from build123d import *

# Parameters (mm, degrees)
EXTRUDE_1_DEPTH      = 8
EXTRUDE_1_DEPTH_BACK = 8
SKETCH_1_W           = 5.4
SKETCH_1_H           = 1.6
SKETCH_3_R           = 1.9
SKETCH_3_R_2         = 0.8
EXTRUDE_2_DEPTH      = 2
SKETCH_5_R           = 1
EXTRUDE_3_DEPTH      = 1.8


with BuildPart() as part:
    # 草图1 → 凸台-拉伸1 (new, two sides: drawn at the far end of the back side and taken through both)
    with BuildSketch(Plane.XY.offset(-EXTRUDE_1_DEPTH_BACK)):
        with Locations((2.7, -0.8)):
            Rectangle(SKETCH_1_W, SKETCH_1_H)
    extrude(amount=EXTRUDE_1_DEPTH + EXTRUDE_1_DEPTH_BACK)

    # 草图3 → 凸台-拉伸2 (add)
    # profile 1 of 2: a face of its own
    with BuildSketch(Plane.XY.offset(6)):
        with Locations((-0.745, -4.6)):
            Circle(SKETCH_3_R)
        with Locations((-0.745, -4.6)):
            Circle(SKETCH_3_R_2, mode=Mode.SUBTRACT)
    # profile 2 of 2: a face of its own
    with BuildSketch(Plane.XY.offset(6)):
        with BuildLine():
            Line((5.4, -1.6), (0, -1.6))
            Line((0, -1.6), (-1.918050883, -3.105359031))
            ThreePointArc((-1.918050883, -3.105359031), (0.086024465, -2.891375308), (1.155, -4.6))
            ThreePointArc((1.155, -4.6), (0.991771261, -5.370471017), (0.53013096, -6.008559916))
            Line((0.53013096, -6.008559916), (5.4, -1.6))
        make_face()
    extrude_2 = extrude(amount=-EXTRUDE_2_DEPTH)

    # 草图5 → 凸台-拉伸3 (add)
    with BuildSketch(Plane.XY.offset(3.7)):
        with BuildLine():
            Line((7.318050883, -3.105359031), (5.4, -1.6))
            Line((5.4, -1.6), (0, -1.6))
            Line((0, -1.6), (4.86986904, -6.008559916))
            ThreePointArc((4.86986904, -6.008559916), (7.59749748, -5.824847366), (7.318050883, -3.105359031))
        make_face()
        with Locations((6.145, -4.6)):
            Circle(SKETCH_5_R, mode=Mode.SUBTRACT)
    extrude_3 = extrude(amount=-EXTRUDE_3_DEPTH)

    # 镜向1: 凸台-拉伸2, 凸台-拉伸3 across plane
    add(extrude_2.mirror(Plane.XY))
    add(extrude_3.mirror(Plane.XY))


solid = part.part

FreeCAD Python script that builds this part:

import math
import FreeCAD as App
import Part
import Sketcher
from FreeCAD import Vector
Q = App.Units.Quantity

doc = App.newDocument("Part")
body = doc.addObject("PartDesign::Body", "Body")

# Sketch on XY plane
sketch1 = body.newObject("Sketcher::SketchObject", "Sketch")
sketch1.AttachmentSupport = (doc.getObject("XY_Plane"), [""])
sketch1.MapMode = "FlatFace"
sketch1.addGeometry(Part.LineSegment(Vector(0, 0, 0), Vector(0, -1.6, 0)), False)
sketch1.addGeometry(Part.LineSegment(Vector(0, -1.6, 0), Vector(5.4, -1.6, 0)), False)
sketch1.addGeometry(Part.LineSegment(Vector(5.4, -1.6, 0), Vector(5.4, 0, 0)), False)
sketch1.addGeometry(Part.LineSegment(Vector(5.4, 0, 0), Vector(0, 0, 0)), False)
sketch1.addConstraint(Sketcher.Constraint("Coincident", 0, 2, 1, 1))
sketch1.addConstraint(Sketcher.Constraint("Coincident", 1, 2, 2, 1))
sketch1.addConstraint(Sketcher.Constraint("Coincident", 2, 2, 3, 1))
sketch1.addConstraint(Sketcher.Constraint("Coincident", 3, 2, 0, 1))
sketch1.addConstraint(Sketcher.Constraint("Vertical", 0))
sketch1.addConstraint(Sketcher.Constraint("Horizontal", 1))
sketch1.addConstraint(Sketcher.Constraint("Vertical", 2))
sketch1.addConstraint(Sketcher.Constraint("Horizontal", 3))
sketch1.addConstraint(Sketcher.Constraint("Coincident", 3, 2, -1, 1))
sketch1.addConstraint(Sketcher.Constraint("DistanceX", 1, 1, 1, 2, Q("5.4 mm")))
sketch1.addConstraint(Sketcher.Constraint("DistanceY", 0, 2, 0, 1, Q("1.6 mm")))
pad1 = body.newObject("PartDesign::Pad", "Pad")
pad1.Profile = sketch1
pad1.Type = "TwoLengths"
pad1.Length = 8
pad1.Length2 = 8

# Sketch on XY plane
sketch2 = body.newObject("Sketcher::SketchObject", "Sketch001")
sketch2.AttachmentSupport = (doc.getObject("XY_Plane"), [""])
sketch2.MapMode = "FlatFace"
sketch2.AttachmentOffset = App.Placement(Vector(0, 0, 6), App.Rotation())
sketch2.addGeometry(Part.ArcOfCircle(Part.Circle(Vector(-0.745, -4.6, 0), Vector(0, 0, 1), 1.9), math.radians(128.126167), math.radians(312.153686)), False)
sketch2.addGeometry(Part.LineSegment(Vector(0.530131, -6.00856, 0), Vector(5.4, -1.6, 0)), False)
sketch2.addGeometry(Part.LineSegment(Vector(5.4, -1.6, 0), Vector(0, -1.6, 0)), False)
sketch2.addGeometry(Part.LineSegment(Vector(0, -1.6, 0), Vector(-1.918051, -3.105359, 0)), False)
sketch2.addGeometry(Part.Circle(Vector(-0.745, -4.6, 0), Vector(0, 0, 1), 0.8), False)
sketch2.addConstraint(Sketcher.Constraint("Tangent", 0, 2, 1, 1))
sketch2.addConstraint(Sketcher.Constraint("Coincident", 1, 2, 2, 1))
sketch2.addConstraint(Sketcher.Constraint("Coincident", 2, 2, 3, 1))
sketch2.addConstraint(Sketcher.Constraint("Tangent", 3, 2, 0, 1))
sketch2.addConstraint(Sketcher.Constraint("Horizontal", 2))
sketch2.addConstraint(Sketcher.Constraint("Coincident", 4, 3, 0, 3))
sketch2.addConstraint(Sketcher.Constraint("PointOnObject", 2, 2, -2))
sketch2.addConstraint(Sketcher.Constraint("Diameter", 4, Q("1.6 mm")))
sketch2.addConstraint(Sketcher.Constraint("Radius", 0, Q("1.9 mm")))
sketch2.addConstraint(Sketcher.Constraint("DistanceX", 2, 2, 2, 1, Q("5.4 mm")))
sketch2.addConstraint(Sketcher.Constraint("DistanceY", 0, 3, 1, 2, Q("3 mm")))
sketch2.addConstraint(Sketcher.Constraint("DistanceY", 0, 3, -1, 1, Q("4.6 mm")))
sketch2.addConstraint(Sketcher.Constraint("DistanceX", 0, 3, -1, 1, Q("0.745 mm")))
pad2 = body.newObject("PartDesign::Pad", "Pad001")
pad2.Profile = sketch2
pad2.Length = 2
pad2.Reversed = True

# Sketch on XY plane
sketch3 = body.newObject("Sketcher::SketchObject", "Sketch002")
sketch3.AttachmentSupport = (doc.getObject("XY_Plane"), [""])
sketch3.MapMode = "FlatFace"
sketch3.AttachmentOffset = App.Placement(Vector(0, 0, 3.7), App.Rotation())
sketch3.addGeometry(Part.LineSegment(Vector(7.318051, -3.105359, 0), Vector(5.4, -1.6, 0)), False)
sketch3.addGeometry(Part.LineSegment(Vector(5.4, -1.6, 0), Vector(0, -1.6, 0)), False)
sketch3.addGeometry(Part.LineSegment(Vector(0, -1.6, 0), Vector(4.869869, -6.00856, 0)), False)
sketch3.addGeometry(Part.ArcOfCircle(Part.Circle(Vector(6.145, -4.6, 0), Vector(0, 0, 1), 1.9), math.radians(-132.153686), math.radians(51.873833)), False)
sketch3.addGeometry(Part.Circle(Vector(6.145, -4.6, 0), Vector(0, 0, 1), 1), False)
sketch3.addConstraint(Sketcher.Constraint("Coincident", 0, 2, 1, 1))
sketch3.addConstraint(Sketcher.Constraint("Coincident", 1, 2, 2, 1))
sketch3.addConstraint(Sketcher.Constraint("Tangent", 2, 2, 3, 1))
sketch3.addConstraint(Sketcher.Constraint("Tangent", 3, 2, 0, 1))
sketch3.addConstraint(Sketcher.Constraint("Horizontal", 1))
sketch3.addConstraint(Sketcher.Constraint("Coincident", 4, 3, 3, 3))
sketch3.addConstraint(Sketcher.Constraint("PointOnObject", 1, 2, -2))
sketch3.addConstraint(Sketcher.Constraint("Diameter", 4, Q("2 mm")))
sketch3.addConstraint(Sketcher.Constraint("Radius", 3, Q("1.9 mm")))
sketch3.addConstraint(Sketcher.Constraint("DistanceX", 1, 2, 1, 1, Q("5.4 mm")))
sketch3.addConstraint(Sketcher.Constraint("DistanceY", 3, 3, 0, 2, Q("3 mm")))
sketch3.addConstraint(Sketcher.Constraint("DistanceY", 3, 3, -1, 1, Q("4.6 mm")))
sketch3.addConstraint(Sketcher.Constraint("DistanceX", -1, 1, 3, 3, Q("6.145 mm")))
pad3 = body.newObject("PartDesign::Pad", "Pad002")
pad3.Profile = sketch3
pad3.Length = 1.8
pad3.Reversed = True
doc.recompute()

mirrored = body.newObject("PartDesign::Mirrored", "Mirrored")
mirrored.Originals = [pad2, pad3]
mirrored.MirrorPlane = (doc.getObject("XY_Plane"), [""])
body.Tip = mirrored

doc.recompute()
